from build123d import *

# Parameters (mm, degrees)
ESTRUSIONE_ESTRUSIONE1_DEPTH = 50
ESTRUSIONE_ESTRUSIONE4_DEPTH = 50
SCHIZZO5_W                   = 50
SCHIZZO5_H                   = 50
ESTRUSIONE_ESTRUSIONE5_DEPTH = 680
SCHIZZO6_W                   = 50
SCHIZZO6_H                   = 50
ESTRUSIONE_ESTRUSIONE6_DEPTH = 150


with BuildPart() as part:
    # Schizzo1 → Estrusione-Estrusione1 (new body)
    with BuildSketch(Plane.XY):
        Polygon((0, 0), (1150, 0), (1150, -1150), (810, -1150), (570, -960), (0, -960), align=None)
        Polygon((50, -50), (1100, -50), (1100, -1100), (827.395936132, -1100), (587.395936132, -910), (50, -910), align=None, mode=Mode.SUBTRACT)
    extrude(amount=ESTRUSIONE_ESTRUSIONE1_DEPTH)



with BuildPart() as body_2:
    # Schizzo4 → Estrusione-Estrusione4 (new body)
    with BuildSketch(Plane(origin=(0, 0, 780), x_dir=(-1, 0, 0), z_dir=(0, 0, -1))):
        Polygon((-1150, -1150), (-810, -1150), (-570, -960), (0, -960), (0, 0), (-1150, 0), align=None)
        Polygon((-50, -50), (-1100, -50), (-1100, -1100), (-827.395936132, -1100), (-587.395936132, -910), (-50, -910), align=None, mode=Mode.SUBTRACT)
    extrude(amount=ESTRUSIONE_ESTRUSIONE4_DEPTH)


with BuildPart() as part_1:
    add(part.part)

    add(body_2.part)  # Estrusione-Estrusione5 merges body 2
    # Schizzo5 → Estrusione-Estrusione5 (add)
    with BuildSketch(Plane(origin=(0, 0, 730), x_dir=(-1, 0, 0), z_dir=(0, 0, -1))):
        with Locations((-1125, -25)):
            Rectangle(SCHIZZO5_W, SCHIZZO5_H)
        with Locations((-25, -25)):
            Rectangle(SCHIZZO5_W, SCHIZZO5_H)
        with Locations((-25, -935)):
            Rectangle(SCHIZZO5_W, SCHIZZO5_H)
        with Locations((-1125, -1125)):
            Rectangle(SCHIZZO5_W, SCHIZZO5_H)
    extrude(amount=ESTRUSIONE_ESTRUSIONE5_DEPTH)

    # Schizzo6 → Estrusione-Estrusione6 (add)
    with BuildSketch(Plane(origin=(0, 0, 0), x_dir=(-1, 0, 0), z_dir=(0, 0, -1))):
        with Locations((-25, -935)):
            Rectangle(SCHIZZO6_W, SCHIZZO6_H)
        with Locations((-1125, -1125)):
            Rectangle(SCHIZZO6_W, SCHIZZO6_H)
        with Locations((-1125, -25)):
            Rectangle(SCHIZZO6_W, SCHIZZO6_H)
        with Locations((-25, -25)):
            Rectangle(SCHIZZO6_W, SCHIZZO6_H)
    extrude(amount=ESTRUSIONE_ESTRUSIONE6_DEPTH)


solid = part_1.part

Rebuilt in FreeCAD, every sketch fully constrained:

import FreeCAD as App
import Part
import Sketcher
from FreeCAD import Vector
Q = App.Units.Quantity

doc = App.newDocument("Part")
body = doc.addObject("PartDesign::Body", "Body")

# Sketch on XY plane
sketch1 = body.newObject("Sketcher::SketchObject", "Sketch")
sketch1.AttachmentSupport = (doc.getObject("XY_Plane"), [""])
sketch1.MapMode = "FlatFace"
sketch1.addGeometry(Part.LineSegment(Vector(1150, 0, 0), Vector(0, 0, 0)), False)
sketch1.addGeometry(Part.LineSegment(Vector(0, 0, 0), Vector(0, -960, 0)), False)
sketch1.addGeometry(Part.LineSegment(Vector(0, -960, 0), Vector(570, -960, 0)), False)
sketch1.addGeometry(Part.LineSegment(Vector(570, -960, 0), Vector(810, -1150, 0)), False)
sketch1.addGeometry(Part.LineSegment(Vector(810, -1150, 0), Vector(1150, -1150, 0)), False)
sketch1.addGeometry(Part.LineSegment(Vector(1150, -1150, 0), Vector(1150, 0, 0)), False)
sketch1.addGeometry(Part.LineSegment(Vector(50, -50, 0), Vector(1100, -50, 0)), False)
sketch1.addGeometry(Part.LineSegment(Vector(1100, -50, 0), Vector(1100, -1100, 0)), False)
sketch1.addGeometry(Part.LineSegment(Vector(1100, -1100, 0), Vector(827.395936, -1100, 0)), False)
sketch1.addGeometry(Part.LineSegment(Vector(827.395936, -1100, 0), Vector(587.395936, -910, 0)), False)
sketch1.addGeometry(Part.LineSegment(Vector(587.395936, -910, 0), Vector(50, -910, 0)), False)
sketch1.addGeometry(Part.LineSegment(Vector(50, -910, 0), Vector(50, -50, 0)), False)
sketch1.addConstraint(Sketcher.Constraint("Coincident", 0, 2, 1, 1))
sketch1.addConstraint(Sketcher.Constraint("Coincident", 1, 2, 2, 1))
sketch1.addConstraint(Sketcher.Constraint("Coincident", 2, 2, 3, 1))
sketch1.addConstraint(Sketcher.Constraint("Coincident", 3, 2, 4, 1))
sketch1.addConstraint(Sketcher.Constraint("Coincident", 4, 2, 5, 1))
sketch1.addConstraint(Sketcher.Constraint("Coincident", 5, 2, 0, 1))
sketch1.addConstraint(Sketcher.Constraint("Coincident", 6, 2, 7, 1))
sketch1.addConstraint(Sketcher.Constraint("Coincident", 7, 2, 8, 1))
sketch1.addConstraint(Sketcher.Constraint("Coincident", 8, 2, 9, 1))
sketch1.addConstraint(Sketcher.Constraint("Coincident", 9, 2, 10, 1))
sketch1.addConstraint(Sketcher.Constraint("Coincident", 10, 2, 11, 1))
sketch1.addConstraint(Sketcher.Constraint("Coincident", 11, 2, 6, 1))
sketch1.addConstraint(Sketcher.Constraint("Horizontal", 0))
sketch1.addConstraint(Sketcher.Constraint("Vertical", 1))
sketch1.addConstraint(Sketcher.Constraint("Horizontal", 2))
sketch1.addConstraint(Sketcher.Constraint("Horizontal", 4))
sketch1.addConstraint(Sketcher.Constraint("Vertical", 5))
sketch1.addConstraint(Sketcher.Constraint("Horizontal", 6))
sketch1.addConstraint(Sketcher.Constraint("Vertical", 7))
sketch1.addConstraint(Sketcher.Constraint("Horizontal", 8))
sketch1.addConstraint(Sketcher.Constraint("Horizontal", 10))
sketch1.addConstraint(Sketcher.Constraint("Vertical", 11))
sketch1.addConstraint(Sketcher.Constraint("Coincident", 0, 2, -1, 1))
sketch1.addConstraint(Sketcher.Constraint("Parallel", 3, 9))
sketch1.addConstraint(Sketcher.Constraint("Equal", 0, 5))
sketch1.addConstraint(Sketcher.Constraint("Equal", 6, 7))
sketch1.addConstraint(Sketcher.Constraint("Equal", 3, 9))
sketch1.addConstraint(Sketcher.Constraint("DistanceX", 0, 2, 0, 1, Q("1150 mm")))
sketch1.addConstraint(Sketcher.Constraint("DistanceX", 2, 1, 2, 2, Q("570 mm")))
sketch1.addConstraint(Sketcher.Constraint("DistanceX", 4, 1, 4, 2, Q("340 mm")))
sketch1.addConstraint(Sketcher.Constraint("DistanceX", 6, 1, 6, 2, Q("1050 mm")))
sketch1.addConstraint(Sketcher.Constraint("DistanceY", 1, 2, 1, 1, Q("960 mm")))
sketch1.addConstraint(Sketcher.Constraint("DistanceX", -1, 1, 6, 2, Q("1100 mm")))
sketch1.addConstraint(Sketcher.Constraint("DistanceY", 6, 2, -1, 1, Q("50 mm")))
sketch1.addConstraint(Sketcher.Constraint("DistanceX", 8, 2, 8, 1, Q("272.604064 mm")))
pad1 = body.newObject("PartDesign::Pad", "Pad")
pad1.Profile = sketch1
pad1.Length = 50
body2 = doc.addObject("PartDesign::Body", "Body001")

# Sketch on XY plane
sketch2 = body2.newObject("Sketcher::SketchObject", "Sketch001")
sketch2.AttachmentSupport = (doc.getObject("XY_Plane001"), [""])
sketch2.MapMode = "FlatFace"
sketch2.AttachmentOffset = App.Placement(Vector(0, 0, 780), App.Rotation())
sketch2.addGeometry(Part.LineSegment(Vector(1150, -1150, 0), Vector(810, -1150, 0)), False)
sketch2.addGeometry(Part.LineSegment(Vector(810, -1150, 0), Vector(570, -960, 0)), False)
sketch2.addGeometry(Part.LineSegment(Vector(570, -960, 0), Vector(0, -960, 0)), False)
sketch2.addGeometry(Part.LineSegment(Vector(0, -960, 0), Vector(0, 0, 0)), False)
sketch2.addGeometry(Part.LineSegment(Vector(0, 0, 0), Vector(1150, 0, 0)), False)
sketch2.addGeometry(Part.LineSegment(Vector(1150, 0, 0), Vector(1150, -1150, 0)), False)
sketch2.addGeometry(Part.LineSegment(Vector(1100, -50, 0), Vector(50, -50, 0)), False)
sketch2.addGeometry(Part.LineSegment(Vector(50, -50, 0), Vector(50, -910, 0)), False)
sketch2.addGeometry(Part.LineSegment(Vector(50, -910, 0), Vector(587.395936, -910, 0)), False)
sketch2.addGeometry(Part.LineSegment(Vector(587.395936, -910, 0), Vector(827.395936, -1100, 0)), False)
sketch2.addGeometry(Part.LineSegment(Vector(827.395936, -1100, 0), Vector(1100, -1100, 0)), False)
sketch2.addGeometry(Part.LineSegment(Vector(1100, -1100, 0), Vector(1100, -50, 0)), False)
sketch2.addConstraint(Sketcher.Constraint("Coincident", 0, 2, 1, 1))
sketch2.addConstraint(Sketcher.Constraint("Coincident", 1, 2, 2, 1))
sketch2.addConstraint(Sketcher.Constraint("Coincident", 2, 2, 3, 1))
sketch2.addConstraint(Sketcher.Constraint("Coincident", 3, 2, 4, 1))
sketch2.addConstraint(Sketcher.Constraint("Coincident", 4, 2, 5, 1))
sketch2.addConstraint(Sketcher.Constraint("Coincident", 5, 2, 0, 1))
sketch2.addConstraint(Sketcher.Constraint("Coincident", 6, 2, 7, 1))
sketch2.addConstraint(Sketcher.Constraint("Coincident", 7, 2, 8, 1))
sketch2.addConstraint(Sketcher.Constraint("Coincident", 8, 2, 9, 1))
sketch2.addConstraint(Sketcher.Constraint("Coincident", 9, 2, 10, 1))
sketch2.addConstraint(Sketcher.Constraint("Coincident", 10, 2, 11, 1))
sketch2.addConstraint(Sketcher.Constraint("Coincident", 11, 2, 6, 1))
sketch2.addConstraint(Sketcher.Constraint("Horizontal", 0))
sketch2.addConstraint(Sketcher.Constraint("Horizontal", 2))
sketch2.addConstraint(Sketcher.Constraint("Vertical", 3))
sketch2.addConstraint(Sketcher.Constraint("Horizontal", 4))
sketch2.addConstraint(Sketcher.Constraint("Vertical", 5))
sketch2.addConstraint(Sketcher.Constraint("Horizontal", 6))
sketch2.addConstraint(Sketcher.Constraint("Vertical", 7))
sketch2.addConstraint(Sketcher.Constraint("Horizontal", 8))
sketch2.addConstraint(Sketcher.Constraint("Horizontal", 10))
sketch2.addConstraint(Sketcher.Constraint("Vertical", 11))
sketch2.addConstraint(Sketcher.Constraint("Coincident", 3, 2, -1, 1))
sketch2.addConstraint(Sketcher.Constraint("Parallel", 1, 9))
sketch2.addConstraint(Sketcher.Constraint("Equal", 4, 5))
sketch2.addConstraint(Sketcher.Constraint("Equal", 6, 11))
sketch2.addConstraint(Sketcher.Constraint("Equal", 1, 9))
sketch2.addConstraint(Sketcher.Constraint("DistanceX", 0, 2, 0, 1, Q("340 mm")))
sketch2.addConstraint(Sketcher.Constraint("DistanceX", 2, 2, 2, 1, Q("570 mm")))
sketch2.addConstraint(Sketcher.Constraint("DistanceX", 4, 1, 4, 2, Q("1150 mm")))
sketch2.addConstraint(Sketcher.Constraint("DistanceX", 6, 2, 6, 1, Q("1050 mm")))
sketch2.addConstraint(Sketcher.Constraint("DistanceY", 3, 1, 3, 2, Q("960 mm")))
sketch2.addConstraint(Sketcher.Constraint("DistanceX", -1, 1, 6, 2, Q("50 mm")))
sketch2.addConstraint(Sketcher.Constraint("DistanceY", 6, 2, -1, 1, Q("50 mm")))
sketch2.addConstraint(Sketcher.Constraint("DistanceX", 8, 1, 8, 2, Q("537.395936 mm")))
pad2 = body2.newObject("PartDesign::Pad", "Pad001")
pad2.Profile = sketch2
pad2.Length = 50
pad2.Reversed = True
body.AllowCompound = True
doc.recompute()

boolean = body.newObject("PartDesign::Boolean", "Boolean")
boolean.Type = "Fuse"
boolean.addObjects([body2])

# Sketch on XY plane
sketch3 = body.newObject("Sketcher::SketchObject", "Sketch002")
sketch3.AttachmentSupport = (doc.getObject("XY_Plane"), [""])
sketch3.MapMode = "FlatFace"
sketch3.AttachmentOffset = App.Placement(Vector(0, 0, 730), App.Rotation())
sketch3.addGeometry(Part.LineSegment(Vector(1150, 0, 0), Vector(1150, -50, 0)), False)
sketch3.addGeometry(Part.LineSegment(Vector(1150, -50, 0), Vector(1100, -50, 0)), False)
sketch3.addGeometry(Part.LineSegment(Vector(1100, -50, 0), Vector(1100, 0, 0)), False)
sketch3.addGeometry(Part.LineSegment(Vector(1100, 0, 0), Vector(1150, 0, 0)), False)
sketch3.addGeometry(Part.LineSegment(Vector(50, 0, 0), Vector(50, -50, 0)), False)
sketch3.addGeometry(Part.LineSegment(Vector(50, -50, 0), Vector(0, -50, 0)), False)
sketch3.addGeometry(Part.LineSegment(Vector(0, -50, 0), Vector(0, 0, 0)), False)
sketch3.addGeometry(Part.LineSegment(Vector(0, 0, 0), Vector(50, 0, 0)), False)
sketch3.addGeometry(Part.LineSegment(Vector(50, -910, 0), Vector(50, -960, 0)), False)
sketch3.addGeometry(Part.LineSegment(Vector(50, -960, 0), Vector(0, -960, 0)), False)
sketch3.addGeometry(Part.LineSegment(Vector(0, -960, 0), Vector(0, -910, 0)), False)
sketch3.addGeometry(Part.LineSegment(Vector(0, -910, 0), Vector(50, -910, 0)), False)
sketch3.addGeometry(Part.LineSegment(Vector(1150, -1100, 0), Vector(1150, -1150, 0)), False)
sketch3.addGeometry(Part.LineSegment(Vector(1150, -1150, 0), Vector(1100, -1150, 0)), False)
sketch3.addGeometry(Part.LineSegment(Vector(1100, -1150, 0), Vector(1100, -1100, 0)), False)
sketch3.addGeometry(Part.LineSegment(Vector(1100, -1100, 0), Vector(1150, -1100, 0)), False)
sketch3.addConstraint(Sketcher.Constraint("Coincident", 0, 2, 1, 1))
sketch3.addConstraint(Sketcher.Constraint("Coincident", 1, 2, 2, 1))
sketch3.addConstraint(Sketcher.Constraint("Coincident", 2, 2, 3, 1))
sketch3.addConstraint(Sketcher.Constraint("Coincident", 3, 2, 0, 1))
sketch3.addConstraint(Sketcher.Constraint("Coincident", 4, 2, 5, 1))
sketch3.addConstraint(Sketcher.Constraint("Coincident", 5, 2, 6, 1))
sketch3.addConstraint(Sketcher.Constraint("Coincident", 6, 2, 7, 1))
sketch3.addConstraint(Sketcher.Constraint("Coincident", 7, 2, 4, 1))
sketch3.addConstraint(Sketcher.Constraint("Coincident", 8, 2, 9, 1))
sketch3.addConstraint(Sketcher.Constraint("Coincident", 9, 2, 10, 1))
sketch3.addConstraint(Sketcher.Constraint("Coincident", 10, 2, 11, 1))
sketch3.addConstraint(Sketcher.Constraint("Coincident", 11, 2, 8, 1))
sketch3.addConstraint(Sketcher.Constraint("Coincident", 12, 2, 13, 1))
sketch3.addConstraint(Sketcher.Constraint("Coincident", 13, 2, 14, 1))
sketch3.addConstraint(Sketcher.Constraint("Coincident", 14, 2, 15, 1))
sketch3.addConstraint(Sketcher.Constraint("Coincident", 15, 2, 12, 1))
sketch3.addConstraint(Sketcher.Constraint("Vertical", 0))
sketch3.addConstraint(Sketcher.Constraint("Horizontal", 1))
sketch3.addConstraint(Sketcher.Constraint("Vertical", 2))
sketch3.addConstraint(Sketcher.Constraint("Horizontal", 3))
sketch3.addConstraint(Sketcher.Constraint("Vertical", 4))
sketch3.addConstraint(Sketcher.Constraint("Horizontal", 5))
sketch3.addConstraint(Sketcher.Constraint("Vertical", 6))
sketch3.addConstraint(Sketcher.Constraint("Horizontal", 7))
sketch3.addConstraint(Sketcher.Constraint("Vertical", 8))
sketch3.addConstraint(Sketcher.Constraint("Horizontal", 9))
sketch3.addConstraint(Sketcher.Constraint("Vertical", 10))
sketch3.addConstraint(Sketcher.Constraint("Horizontal", 11))
sketch3.addConstraint(Sketcher.Constraint("Vertical", 12))
sketch3.addConstraint(Sketcher.Constraint("Horizontal", 13))
sketch3.addConstraint(Sketcher.Constraint("Vertical", 14))
sketch3.addConstraint(Sketcher.Constraint("Horizontal", 15))
sketch3.addConstraint(Sketcher.Constraint("Coincident", 6, 2, -1, 1))
sketch3.addConstraint(Sketcher.Constraint("PointOnObject", 2, 2, -1))
sketch3.addConstraint(Sketcher.Constraint("PointOnObject", 9, 2, -2))
sketch3.addConstraint(Sketcher.Constraint("Horizontal", 1, 2, 4, 2))
sketch3.addConstraint(Sketcher.Constraint("Vertical", 7, 2, 8, 2))
sketch3.addConstraint(Sketcher.Constraint("Vertical", 3, 2, 12, 2))
sketch3.addConstraint(Sketcher.Constraint("Vertical", 2, 2, 13, 2))
sketch3.addConstraint(Sketcher.Constraint("Equal", 3, 5))
sketch3.addConstraint(Sketcher.Constraint("Equal", 15, 0))
sketch3.addConstraint(Sketcher.Constraint("Equal", 6, 8))
sketch3.addConstraint(Sketcher.Constraint("Equal", 10, 12))
sketch3.addConstraint(Sketcher.Constraint("DistanceX", 1, 2, 1, 1, Q("50 mm")))
sketch3.addConstraint(Sketcher.Constraint("DistanceX", -1, 1, 0, 2, Q("1150 mm")))
sketch3.addConstraint(Sketcher.Constraint("DistanceY", 8, 2, -1, 1, Q("960 mm")))
sketch3.addConstraint(Sketcher.Constraint("DistanceY", 12, 2, -1, 1, Q("1150 mm")))
pad3 = body.newObject("PartDesign::Pad", "Pad002")
pad3.Profile = sketch3
pad3.Length = 680
pad3.Reversed = True

# Sketch on XY plane
sketch4 = body.newObject("Sketcher::SketchObject", "Sketch003")
sketch4.AttachmentSupport = (doc.getObject("XY_Plane"), [""])
sketch4.MapMode = "FlatFace"
sketch4.addGeometry(Part.LineSegment(Vector(50, -910, 0), Vector(50, -960, 0)), False)
sketch4.addGeometry(Part.LineSegment(Vector(50, -960, 0), Vector(0, -960, 0)), False)
sketch4.addGeometry(Part.LineSegment(Vector(0, -960, 0), Vector(0, -910, 0)), False)
sketch4.addGeometry(Part.LineSegment(Vector(0, -910, 0), Vector(50, -910, 0)), False)
sketch4.addGeometry(Part.LineSegment(Vector(1150, -1100, 0), Vector(1150, -1150, 0)), False)
sketch4.addGeometry(Part.LineSegment(Vector(1150, -1150, 0), Vector(1100, -1150, 0)), False)
sketch4.addGeometry(Part.LineSegment(Vector(1100, -1150, 0), Vector(1100, -1100, 0)), False)
sketch4.addGeometry(Part.LineSegment(Vector(1100, -1100, 0), Vector(1150, -1100, 0)), False)
sketch4.addGeometry(Part.LineSegment(Vector(1150, 0, 0), Vector(1150, -50, 0)), False)
sketch4.addGeometry(Part.LineSegment(Vector(1150, -50, 0), Vector(1100, -50, 0)), False)
sketch4.addGeometry(Part.LineSegment(Vector(1100, -50, 0), Vector(1100, 0, 0)), False)
sketch4.addGeometry(Part.LineSegment(Vector(1100, 0, 0), Vector(1150, 0, 0)), False)
sketch4.addGeometry(Part.LineSegment(Vector(50, 0, 0), Vector(50, -50, 0)), False)
sketch4.addGeometry(Part.LineSegment(Vector(50, -50, 0), Vector(0, -50, 0)), False)
sketch4.addGeometry(Part.LineSegment(Vector(0, -50, 0), Vector(0, 0, 0)), False)
sketch4.addGeometry(Part.LineSegment(Vector(0, 0, 0), Vector(50, 0, 0)), False)
sketch4.addConstraint(Sketcher.Constraint("Coincident", 0, 2, 1, 1))
sketch4.addConstraint(Sketcher.Constraint("Coincident", 1, 2, 2, 1))
sketch4.addConstraint(Sketcher.Constraint("Coincident", 2, 2, 3, 1))
sketch4.addConstraint(Sketcher.Constraint("Coincident", 3, 2, 0, 1))
sketch4.addConstraint(Sketcher.Constraint("Coincident", 4, 2, 5, 1))
sketch4.addConstraint(Sketcher.Constraint("Coincident", 5, 2, 6, 1))
sketch4.addConstraint(Sketcher.Constraint("Coincident", 6, 2, 7, 1))
sketch4.addConstraint(Sketcher.Constraint("Coincident", 7, 2, 4, 1))
sketch4.addConstraint(Sketcher.Constraint("Coincident", 8, 2, 9, 1))
sketch4.addConstraint(Sketcher.Constraint("Coincident", 9, 2, 10, 1))
sketch4.addConstraint(Sketcher.Constraint("Coincident", 10, 2, 11, 1))
sketch4.addConstraint(Sketcher.Constraint("Coincident", 11, 2, 8, 1))
sketch4.addConstraint(Sketcher.Constraint("Coincident", 12, 2, 13, 1))
sketch4.addConstraint(Sketcher.Constraint("Coincident", 13, 2, 14, 1))
sketch4.addConstraint(Sketcher.Constraint("Coincident", 14, 2, 15, 1))
sketch4.addConstraint(Sketcher.Constraint("Coincident", 15, 2, 12, 1))
sketch4.addConstraint(Sketcher.Constraint("Vertical", 0))
sketch4.addConstraint(Sketcher.Constraint("Horizontal", 1))
sketch4.addConstraint(Sketcher.Constraint("Vertical", 2))
sketch4.addConstraint(Sketcher.Constraint("Horizontal", 3))
sketch4.addConstraint(Sketcher.Constraint("Vertical", 4))
sketch4.addConstraint(Sketcher.Constraint("Horizontal", 5))
sketch4.addConstraint(Sketcher.Constraint("Vertical", 6))
sketch4.addConstraint(Sketcher.Constraint("Horizontal", 7))
sketch4.addConstraint(Sketcher.Constraint("Vertical", 8))
sketch4.addConstraint(Sketcher.Constraint("Horizontal", 9))
sketch4.addConstraint(Sketcher.Constraint("Vertical", 10))
sketch4.addConstraint(Sketcher.Constraint("Horizontal", 11))
sketch4.addConstraint(Sketcher.Constraint("Vertical", 12))
sketch4.addConstraint(Sketcher.Constraint("Horizontal", 13))
sketch4.addConstraint(Sketcher.Constraint("Vertical", 14))
sketch4.addConstraint(Sketcher.Constraint("Horizontal", 15))
sketch4.addConstraint(Sketcher.Constraint("Coincident", 14, 2, -1, 1))
sketch4.addConstraint(Sketcher.Constraint("PointOnObject", 1, 2, -2))
sketch4.addConstraint(Sketcher.Constraint("PointOnObject", 10, 2, -1))
sketch4.addConstraint(Sketcher.Constraint("Horizontal", 9, 2, 12, 2))
sketch4.addConstraint(Sketcher.Constraint("Vertical", 7, 2, 8, 2))
sketch4.addConstraint(Sketcher.Constraint("Vertical", 6, 2, 9, 2))
sketch4.addConstraint(Sketcher.Constraint("Vertical", 3, 2, 12, 2))
sketch4.addConstraint(Sketcher.Constraint("Equal", 3, 5))
sketch4.addConstraint(Sketcher.Constraint("Equal", 15, 0))
sketch4.addConstraint(Sketcher.Constraint("Equal", 2, 4))
sketch4.addConstraint(Sketcher.Constraint("Equal", 6, 8))
sketch4.addConstraint(Sketcher.Constraint("DistanceX", 1, 2, 1, 1, Q("50 mm")))
sketch4.addConstraint(Sketcher.Constraint("DistanceY", 0, 2, -1, 1, Q("960 mm")))
sketch4.addConstraint(Sketcher.Constraint("DistanceX", -1, 1, 4, 2, Q("1150 mm")))
sketch4.addConstraint(Sketcher.Constraint("DistanceY", 4, 2, -1, 1, Q("1150 mm")))
pad4 = body.newObject("PartDesign::Pad", "Pad003")
pad4.Profile = sketch4
pad4.Length = 150
pad4.Reversed = True

doc.recompute()
